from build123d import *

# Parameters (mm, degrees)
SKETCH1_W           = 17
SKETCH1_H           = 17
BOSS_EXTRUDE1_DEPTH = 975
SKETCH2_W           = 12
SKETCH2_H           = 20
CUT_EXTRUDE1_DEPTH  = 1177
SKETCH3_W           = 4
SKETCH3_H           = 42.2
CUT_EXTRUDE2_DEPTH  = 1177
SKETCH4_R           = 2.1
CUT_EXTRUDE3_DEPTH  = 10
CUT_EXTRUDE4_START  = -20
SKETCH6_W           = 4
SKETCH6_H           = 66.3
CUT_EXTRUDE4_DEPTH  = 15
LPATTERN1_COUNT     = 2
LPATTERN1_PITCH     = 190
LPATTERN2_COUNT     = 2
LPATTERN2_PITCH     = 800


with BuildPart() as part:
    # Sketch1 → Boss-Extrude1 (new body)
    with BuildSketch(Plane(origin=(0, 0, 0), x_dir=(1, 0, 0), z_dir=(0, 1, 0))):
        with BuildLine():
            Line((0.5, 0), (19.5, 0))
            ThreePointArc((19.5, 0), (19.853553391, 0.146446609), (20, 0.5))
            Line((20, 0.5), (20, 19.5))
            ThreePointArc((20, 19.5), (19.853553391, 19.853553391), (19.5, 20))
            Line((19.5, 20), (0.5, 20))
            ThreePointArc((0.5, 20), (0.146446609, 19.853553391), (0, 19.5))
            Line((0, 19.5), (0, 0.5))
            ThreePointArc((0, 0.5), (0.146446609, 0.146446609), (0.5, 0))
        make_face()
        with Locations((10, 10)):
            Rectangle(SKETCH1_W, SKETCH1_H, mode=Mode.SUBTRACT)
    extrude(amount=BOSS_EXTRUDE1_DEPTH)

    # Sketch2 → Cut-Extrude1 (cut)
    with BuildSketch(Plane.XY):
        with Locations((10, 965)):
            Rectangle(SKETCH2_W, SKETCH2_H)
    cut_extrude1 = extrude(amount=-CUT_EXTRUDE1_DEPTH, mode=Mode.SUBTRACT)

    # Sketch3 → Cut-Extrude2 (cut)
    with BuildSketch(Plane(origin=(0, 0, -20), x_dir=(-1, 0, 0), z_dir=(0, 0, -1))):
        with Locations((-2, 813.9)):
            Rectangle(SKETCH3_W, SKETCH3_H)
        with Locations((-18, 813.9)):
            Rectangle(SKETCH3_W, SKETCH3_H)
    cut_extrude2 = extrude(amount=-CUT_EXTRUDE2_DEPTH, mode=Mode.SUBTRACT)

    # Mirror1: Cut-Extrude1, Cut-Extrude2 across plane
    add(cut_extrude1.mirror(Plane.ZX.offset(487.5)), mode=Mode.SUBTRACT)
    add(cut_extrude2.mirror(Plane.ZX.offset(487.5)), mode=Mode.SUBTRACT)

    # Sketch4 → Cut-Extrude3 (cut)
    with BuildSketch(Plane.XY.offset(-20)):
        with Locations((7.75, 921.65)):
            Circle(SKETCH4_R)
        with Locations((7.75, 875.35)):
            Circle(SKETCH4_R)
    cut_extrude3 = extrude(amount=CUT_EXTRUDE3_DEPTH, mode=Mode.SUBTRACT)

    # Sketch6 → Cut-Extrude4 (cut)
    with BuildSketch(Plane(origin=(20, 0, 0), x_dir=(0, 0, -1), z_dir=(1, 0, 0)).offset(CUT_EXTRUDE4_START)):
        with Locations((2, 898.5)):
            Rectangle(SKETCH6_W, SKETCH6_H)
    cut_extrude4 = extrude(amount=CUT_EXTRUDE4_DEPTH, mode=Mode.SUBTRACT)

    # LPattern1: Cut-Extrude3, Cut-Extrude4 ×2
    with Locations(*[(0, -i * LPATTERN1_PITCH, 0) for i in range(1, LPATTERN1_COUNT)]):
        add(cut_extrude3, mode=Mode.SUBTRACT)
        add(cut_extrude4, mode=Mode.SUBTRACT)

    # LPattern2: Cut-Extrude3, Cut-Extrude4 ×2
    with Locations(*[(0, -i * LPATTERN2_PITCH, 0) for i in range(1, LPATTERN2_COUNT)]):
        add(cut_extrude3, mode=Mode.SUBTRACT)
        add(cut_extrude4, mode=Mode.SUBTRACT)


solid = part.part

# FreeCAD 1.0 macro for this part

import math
import FreeCAD as App
import Part
import Sketcher


def add_polygon(sketch, points):
    """Adds a closed chain of lines whose ends are joined by coincident constraints."""
    first, n = sketch.GeometryCount, len(points)
    for a, b in zip(points, points[1:] + points[:1]):
        sketch.addGeometry(Part.LineSegment(App.Vector(*a, 0), App.Vector(*b, 0)), False)
    for i in range(n):
        sketch.addConstraint(Sketcher.Constraint("Coincident", first + i, 2, first + (i + 1) % n, 1))

doc = App.newDocument("Part")
body = doc.addObject("PartDesign::Body", "Body")

sketch1 = body.newObject("Sketcher::SketchObject", "Sketch")
sketch1.AttachmentSupport = (doc.getObject("XZ_Plane"), [""])
sketch1.MapMode = "FlatFace"
sketch1.addGeometry(Part.LineSegment(App.Vector(0.5, 0, 0), App.Vector(19.5, 0, 0)), False)
sketch1.addGeometry(Part.ArcOfCircle(Part.Circle(App.Vector(19.5, -0.5, 0), App.Vector(0, 0, 1), 0.5), math.radians(0), math.radians(90)), False)
sketch1.addGeometry(Part.LineSegment(App.Vector(20, -0.5, 0), App.Vector(20, -19.5, 0)), False)
sketch1.addGeometry(Part.ArcOfCircle(Part.Circle(App.Vector(19.5, -19.5, 0), App.Vector(0, 0, 1), 0.5), math.radians(-90), math.radians(0)), False)
sketch1.addGeometry(Part.LineSegment(App.Vector(19.5, -20, 0), App.Vector(0.5, -20, 0)), False)
sketch1.addGeometry(Part.ArcOfCircle(Part.Circle(App.Vector(0.5, -19.5, 0), App.Vector(0, 0, 1), 0.5), math.radians(180), math.radians(270)), False)
sketch1.addGeometry(Part.LineSegment(App.Vector(0, -19.5, 0), App.Vector(0, -0.5, 0)), False)
sketch1.addGeometry(Part.ArcOfCircle(Part.Circle(App.Vector(0.5, -0.5, 0), App.Vector(0, 0, 1), 0.5), math.radians(90), math.radians(180)), False)
add_polygon(sketch1, [(18.5, -1.5), (1.5, -1.5), (1.5, -18.5), (18.5, -18.5)])
sketch1.addConstraint([
    Sketcher.Constraint("Tangent", 0, 2, 1, 2),
    Sketcher.Constraint("Tangent", 1, 1, 2, 1),
    Sketcher.Constraint("Tangent", 2, 2, 3, 2),
    Sketcher.Constraint("Tangent", 3, 1, 4, 1),
    Sketcher.Constraint("Tangent", 4, 2, 5, 2),
    Sketcher.Constraint("Tangent", 5, 1, 6, 1),
    Sketcher.Constraint("Tangent", 6, 2, 7, 2),
    Sketcher.Constraint("Tangent", 7, 1, 0, 1),
    Sketcher.Constraint("Horizontal", 0),
    Sketcher.Constraint("Vertical", 2),
    Sketcher.Constraint("Horizontal", 4),
    Sketcher.Constraint("Vertical", 6),
    Sketcher.Constraint("Horizontal", 8),
    Sketcher.Constraint("Vertical", 9),
    Sketcher.Constraint("Horizontal", 10),
    Sketcher.Constraint("Vertical", 11),
    Sketcher.Constraint("Equal", 1, 3),
    Sketcher.Constraint("Equal", 3, 5),
    Sketcher.Constraint("Equal", 5, 7),
    Sketcher.Constraint("PointOnObject", 0, 2, -1),
    Sketcher.Constraint("PointOnObject", 5, 1, -2),
    Sketcher.Constraint("Equal", 4, 2),
    Sketcher.Constraint("Equal", 10, 9),
    Sketcher.Constraint("Radius", 1, 0.5),
    Sketcher.Constraint("DistanceX", 0, 1, 0, 2, 19.0),
    Sketcher.Constraint("DistanceX", 8, 2, 8, 1, 17.0),
    Sketcher.Constraint("DistanceX", 7, 3, 8, 2, 1.0),
    Sketcher.Constraint("DistanceY", 8, 2, 7, 3, 1.0),
])
pad1 = body.newObject("PartDesign::Pad", "Pad")
pad1.Profile = sketch1
pad1.Length = 975
pad1.Reversed = True

sketch2 = body.newObject("Sketcher::SketchObject", "Sketch001")
sketch2.AttachmentSupport = (doc.getObject("XY_Plane"), [""])
sketch2.MapMode = "FlatFace"
add_polygon(sketch2, [(4, 975), (4, 955), (16, 955), (16, 975)])
sketch2.addConstraint([
    Sketcher.Constraint("Vertical", 0),
    Sketcher.Constraint("Horizontal", 1),
    Sketcher.Constraint("Vertical", 2),
    Sketcher.Constraint("Horizontal", 3),
    Sketcher.Constraint("DistanceX", 1, 1, 1, 2, 12.0),
    Sketcher.Constraint("DistanceY", 0, 2, 0, 1, 20.0),
    Sketcher.Constraint("DistanceX", -1, 1, 0, 2, 4.0),
    Sketcher.Constraint("DistanceY", -1, 1, 0, 2, 955.0),
])
pocket1 = body.newObject("PartDesign::Pocket", "Pocket")
pocket1.Profile = sketch2
pocket1.Length = 1177

sketch3 = body.newObject("Sketcher::SketchObject", "Sketch002")
sketch3.AttachmentSupport = (doc.getObject("XY_Plane"), [""])
sketch3.MapMode = "FlatFace"
sketch3.AttachmentOffset = App.Placement(App.Vector(0, 0, -20), App.Rotation())
add_polygon(sketch3, [(4, 835), (4, 792.8), (0, 792.8), (0, 835)])
add_polygon(sketch3, [(20, 835), (20, 792.8), (16, 792.8), (16, 835)])
sketch3.addConstraint([
    Sketcher.Constraint("Vertical", 0),
    Sketcher.Constraint("Horizontal", 1),
    Sketcher.Constraint("Vertical", 2),
    Sketcher.Constraint("Horizontal", 3),
    Sketcher.Constraint("Vertical", 4),
    Sketcher.Constraint("Horizontal", 5),
    Sketcher.Constraint("Vertical", 6),
    Sketcher.Constraint("Horizontal", 7),
    Sketcher.Constraint("PointOnObject", 1, 2, -2),
    Sketcher.Constraint("Horizontal", 1, 2, 4, 2),
    Sketcher.Constraint("Horizontal", 3, 2, 6, 2),
    Sketcher.Constraint("Equal", 3, 5),
    Sketcher.Constraint("DistanceX", 1, 2, 1, 1, 4.0),
    Sketcher.Constraint("DistanceY", 0, 2, 0, 1, 42.2),
    Sketcher.Constraint("DistanceY", -1, 1, 2, 2, 835.0),
    Sketcher.Constraint("DistanceX", -1, 1, 4, 2, 20.0),
])
pocket2 = body.newObject("PartDesign::Pocket", "Pocket001")
pocket2.Profile = sketch3
pocket2.Length = 1177
pocket2.Reversed = True
doc.recompute()

datumplane = body.newObject("PartDesign::Plane", "DatumPlane")
datumplane.AttachmentSupport = (doc.getObject("XZ_Plane"), [""])
datumplane.MapMode = "FlatFace"
datumplane.AttachmentOffset = App.Placement(App.Vector(0, 0, -487.5), App.Rotation())
mirrored = body.newObject("PartDesign::Mirrored", "Mirrored")
mirrored.Originals = [pocket1, pocket2]
mirrored.MirrorPlane = (datumplane, [""])
body.Tip = mirrored

sketch4 = body.newObject("Sketcher::SketchObject", "Sketch003")
sketch4.AttachmentSupport = (doc.getObject("XY_Plane"), [""])
sketch4.MapMode = "FlatFace"
sketch4.AttachmentOffset = App.Placement(App.Vector(0, 0, -20), App.Rotation())
sketch4.addGeometry([
    Part.Circle(App.Vector(7.8, 921.6, 0), App.Vector(0, 0, 1), 2.1),
    Part.Circle(App.Vector(7.8, 875.4, 0), App.Vector(0, 0, 1), 2.1),
], False)
sketch4.addConstraint([
    Sketcher.Constraint("Equal", 0, 1),
    Sketcher.Constraint("Vertical", 0, 3, 1, 3),
    Sketcher.Constraint("Diameter", 0, 4.2),
    Sketcher.Constraint("DistanceY", 1, 3, 0, 3, 46.3),
    Sketcher.Constraint("DistanceX", -1, 1, 0, 3, 7.75),
    Sketcher.Constraint("DistanceY", -1, 1, 0, 3, 921.65),
])
pocket3 = body.newObject("PartDesign::Pocket", "Pocket002")
pocket3.Profile = sketch4
pocket3.Length = 10
pocket3.Reversed = True

sketch5 = body.newObject("Sketcher::SketchObject", "Sketch004")
sketch5.AttachmentSupport = (doc.getObject("YZ_Plane"), [""])
sketch5.MapMode = "FlatFace"
add_polygon(sketch5, [(931.6, 0), (865.4, 0), (865.4, -4), (931.6, -4)])
sketch5.addConstraint([
    Sketcher.Constraint("Horizontal", 0),
    Sketcher.Constraint("Vertical", 1),
    Sketcher.Constraint("Horizontal", 2),
    Sketcher.Constraint("Vertical", 3),
    Sketcher.Constraint("PointOnObject", 0, 2, -1),
    Sketcher.Constraint("DistanceY", 1, 2, 1, 1, 4.0),
    Sketcher.Constraint("DistanceX", 0, 2, 0, 1, 66.3),
    Sketcher.Constraint("DistanceX", -1, 1, 0, 2, 865.35),
])
pocket4 = body.newObject("PartDesign::Pocket", "Pocket003")
pocket4.Profile = sketch5
pocket4.Length = 15
pocket4.Reversed = True
doc.recompute()

linearpattern = body.newObject("PartDesign::LinearPattern", "LinearPattern")
linearpattern.Originals = [pocket3, pocket4]
linearpattern.Direction = (doc.getObject("Y_Axis"), [""])
linearpattern.Mode = "offset"
linearpattern.Offset = 190
linearpattern.Occurrences = 2
linearpattern.Reversed = True
body.Tip = linearpattern
doc.recompute()

linearpattern2 = body.newObject("PartDesign::LinearPattern", "LinearPattern001")
linearpattern2.Originals = [pocket3, pocket4]
linearpattern2.Direction = (doc.getObject("Y_Axis"), [""])
linearpattern2.Mode = "offset"
linearpattern2.Offset = 800
linearpattern2.Occurrences = 2
linearpattern2.Reversed = True
body.Tip = linearpattern2

doc.recompute()
